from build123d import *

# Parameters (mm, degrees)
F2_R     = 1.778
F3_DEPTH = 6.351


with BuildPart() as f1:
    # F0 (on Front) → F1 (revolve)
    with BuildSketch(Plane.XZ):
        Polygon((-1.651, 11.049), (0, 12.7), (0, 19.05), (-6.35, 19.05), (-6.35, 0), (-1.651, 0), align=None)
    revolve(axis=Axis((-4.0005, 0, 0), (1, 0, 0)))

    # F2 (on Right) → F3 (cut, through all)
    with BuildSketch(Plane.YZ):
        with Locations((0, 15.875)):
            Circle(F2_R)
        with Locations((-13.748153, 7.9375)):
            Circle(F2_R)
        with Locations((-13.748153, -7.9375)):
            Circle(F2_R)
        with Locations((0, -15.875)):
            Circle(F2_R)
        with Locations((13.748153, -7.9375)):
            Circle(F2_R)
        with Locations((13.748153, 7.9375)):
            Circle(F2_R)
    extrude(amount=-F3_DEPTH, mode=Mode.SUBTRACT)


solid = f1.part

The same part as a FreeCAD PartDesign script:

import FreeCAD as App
import Part
import Sketcher
Q = App.Units.Quantity

doc = App.newDocument("Part")
body = doc.addObject("PartDesign::Body", "Body")

# Sketch on XZ plane
sketch1 = body.newObject("Sketcher::SketchObject", "Sketch")
sketch1.AttachmentSupport = (doc.getObject("XZ_Plane"), [""])
sketch1.MapMode = "FlatFace"
sketch1.addGeometry([
    Part.LineSegment(App.Vector(-1.651, 11.049, 0), App.Vector(0, 12.7, 0)),  # 0
    Part.LineSegment(App.Vector(0, 12.7, 0), App.Vector(0, 19.05, 0)),  # 1
    Part.LineSegment(App.Vector(0, 19.05, 0), App.Vector(-6.35, 19.05, 0)),  # 2
    Part.LineSegment(App.Vector(-6.35, 19.05, 0), App.Vector(-6.35, 0, 0)),  # 3
    Part.LineSegment(App.Vector(-6.35, 0, 0), App.Vector(-1.651, 0, 0)),  # 4
    Part.LineSegment(App.Vector(-1.651, 0, 0), App.Vector(-1.651, 11.049, 0)),  # 5
], False)
sketch1.addConstraint([
    Sketcher.Constraint("Coincident", 0, 2, 1, 1),
    Sketcher.Constraint("Coincident", 1, 2, 2, 1),
    Sketcher.Constraint("Coincident", 2, 2, 3, 1),
    Sketcher.Constraint("Coincident", 3, 2, 4, 1),
    Sketcher.Constraint("Coincident", 4, 2, 5, 1),
    Sketcher.Constraint("Coincident", 5, 2, 0, 1),
    Sketcher.Constraint("Vertical", 1),
    Sketcher.Constraint("Horizontal", 2),
    Sketcher.Constraint("Vertical", 3),
    Sketcher.Constraint("Horizontal", 4),
    Sketcher.Constraint("Vertical", 5),
    Sketcher.Constraint("PointOnObject", 0, 2, -2),
    Sketcher.Constraint("PointOnObject", 3, 2, -1),
    Sketcher.Constraint("Equal", 2, 1),
    Sketcher.Constraint("Angle", 0, Q("45 deg")),
    Sketcher.Constraint("DistanceX", 2, 2, 2, 1, Q("0.25 in")),
    Sketcher.Constraint("DistanceY", 3, 2, 3, 1, Q("0.75 in")),
    Sketcher.Constraint("DistanceX", 4, 1, 4, 2, Q("0.185 in")),
])
revolution = body.newObject("PartDesign::Revolution", "Revolution")
revolution.Profile = sketch1
revolution.ReferenceAxis = (sketch1, ["H_Axis"])
revolution.Angle = 360

# Sketch on YZ plane
sketch2 = body.newObject("Sketcher::SketchObject", "Sketch001")
sketch2.AttachmentSupport = (doc.getObject("YZ_Plane"), [""])
sketch2.MapMode = "FlatFace"
sketch2.addGeometry([
    Part.Circle(App.Vector(0, 15.875, 0), App.Vector(0, 0, 1), 1.778),  # 0
    Part.Circle(App.Vector(-13.748153, 7.9375, 0), App.Vector(0, 0, 1), 1.778),  # 1
    Part.Circle(App.Vector(-13.748153, -7.9375, 0), App.Vector(0, 0, 1), 1.778),  # 2
    Part.Circle(App.Vector(0, -15.875, 0), App.Vector(0, 0, 1), 1.778),  # 3
    Part.Circle(App.Vector(13.748153, -7.9375, 0), App.Vector(0, 0, 1), 1.778),  # 4
    Part.Circle(App.Vector(13.748153, 7.9375, 0), App.Vector(0, 0, 1), 1.778),  # 5
], False)
sketch2.addConstraint([
    Sketcher.Constraint("Equal", 0, 1),
    Sketcher.Constraint("Equal", 1, 2),
    Sketcher.Constraint("Equal", 2, 3),
    Sketcher.Constraint("Equal", 3, 4),
    Sketcher.Constraint("Equal", 4, 5),
    Sketcher.Constraint("Symmetric", 0, 3, 3, 3, -1, 1),
    Sketcher.Constraint("Symmetric", 1, 3, 4, 3, -1, 1),
    Sketcher.Constraint("Symmetric", 2, 3, 5, 3, -1, 1),
    Sketcher.Constraint("Symmetric", 2, 3, 4, 3, -2),
    Sketcher.Constraint("PointOnObject", 0, 3, -2),
    Sketcher.Constraint("Diameter", 0, Q("0.14 in")),
    Sketcher.Constraint("DistanceY", 3, 3, 0, 3, Q("1.25 in")),
    Sketcher.Constraint("DistanceY", -1, 1, 1, 3, Q("0.3125 in")),
    Sketcher.Constraint("DistanceX", 1, 3, -1, 1, Q("13.748153 mm")),
])
pocket1 = body.newObject("PartDesign::Pocket", "Pocket")
pocket1.Profile = sketch2
pocket1.Type = "ThroughAll"

doc.recompute()
